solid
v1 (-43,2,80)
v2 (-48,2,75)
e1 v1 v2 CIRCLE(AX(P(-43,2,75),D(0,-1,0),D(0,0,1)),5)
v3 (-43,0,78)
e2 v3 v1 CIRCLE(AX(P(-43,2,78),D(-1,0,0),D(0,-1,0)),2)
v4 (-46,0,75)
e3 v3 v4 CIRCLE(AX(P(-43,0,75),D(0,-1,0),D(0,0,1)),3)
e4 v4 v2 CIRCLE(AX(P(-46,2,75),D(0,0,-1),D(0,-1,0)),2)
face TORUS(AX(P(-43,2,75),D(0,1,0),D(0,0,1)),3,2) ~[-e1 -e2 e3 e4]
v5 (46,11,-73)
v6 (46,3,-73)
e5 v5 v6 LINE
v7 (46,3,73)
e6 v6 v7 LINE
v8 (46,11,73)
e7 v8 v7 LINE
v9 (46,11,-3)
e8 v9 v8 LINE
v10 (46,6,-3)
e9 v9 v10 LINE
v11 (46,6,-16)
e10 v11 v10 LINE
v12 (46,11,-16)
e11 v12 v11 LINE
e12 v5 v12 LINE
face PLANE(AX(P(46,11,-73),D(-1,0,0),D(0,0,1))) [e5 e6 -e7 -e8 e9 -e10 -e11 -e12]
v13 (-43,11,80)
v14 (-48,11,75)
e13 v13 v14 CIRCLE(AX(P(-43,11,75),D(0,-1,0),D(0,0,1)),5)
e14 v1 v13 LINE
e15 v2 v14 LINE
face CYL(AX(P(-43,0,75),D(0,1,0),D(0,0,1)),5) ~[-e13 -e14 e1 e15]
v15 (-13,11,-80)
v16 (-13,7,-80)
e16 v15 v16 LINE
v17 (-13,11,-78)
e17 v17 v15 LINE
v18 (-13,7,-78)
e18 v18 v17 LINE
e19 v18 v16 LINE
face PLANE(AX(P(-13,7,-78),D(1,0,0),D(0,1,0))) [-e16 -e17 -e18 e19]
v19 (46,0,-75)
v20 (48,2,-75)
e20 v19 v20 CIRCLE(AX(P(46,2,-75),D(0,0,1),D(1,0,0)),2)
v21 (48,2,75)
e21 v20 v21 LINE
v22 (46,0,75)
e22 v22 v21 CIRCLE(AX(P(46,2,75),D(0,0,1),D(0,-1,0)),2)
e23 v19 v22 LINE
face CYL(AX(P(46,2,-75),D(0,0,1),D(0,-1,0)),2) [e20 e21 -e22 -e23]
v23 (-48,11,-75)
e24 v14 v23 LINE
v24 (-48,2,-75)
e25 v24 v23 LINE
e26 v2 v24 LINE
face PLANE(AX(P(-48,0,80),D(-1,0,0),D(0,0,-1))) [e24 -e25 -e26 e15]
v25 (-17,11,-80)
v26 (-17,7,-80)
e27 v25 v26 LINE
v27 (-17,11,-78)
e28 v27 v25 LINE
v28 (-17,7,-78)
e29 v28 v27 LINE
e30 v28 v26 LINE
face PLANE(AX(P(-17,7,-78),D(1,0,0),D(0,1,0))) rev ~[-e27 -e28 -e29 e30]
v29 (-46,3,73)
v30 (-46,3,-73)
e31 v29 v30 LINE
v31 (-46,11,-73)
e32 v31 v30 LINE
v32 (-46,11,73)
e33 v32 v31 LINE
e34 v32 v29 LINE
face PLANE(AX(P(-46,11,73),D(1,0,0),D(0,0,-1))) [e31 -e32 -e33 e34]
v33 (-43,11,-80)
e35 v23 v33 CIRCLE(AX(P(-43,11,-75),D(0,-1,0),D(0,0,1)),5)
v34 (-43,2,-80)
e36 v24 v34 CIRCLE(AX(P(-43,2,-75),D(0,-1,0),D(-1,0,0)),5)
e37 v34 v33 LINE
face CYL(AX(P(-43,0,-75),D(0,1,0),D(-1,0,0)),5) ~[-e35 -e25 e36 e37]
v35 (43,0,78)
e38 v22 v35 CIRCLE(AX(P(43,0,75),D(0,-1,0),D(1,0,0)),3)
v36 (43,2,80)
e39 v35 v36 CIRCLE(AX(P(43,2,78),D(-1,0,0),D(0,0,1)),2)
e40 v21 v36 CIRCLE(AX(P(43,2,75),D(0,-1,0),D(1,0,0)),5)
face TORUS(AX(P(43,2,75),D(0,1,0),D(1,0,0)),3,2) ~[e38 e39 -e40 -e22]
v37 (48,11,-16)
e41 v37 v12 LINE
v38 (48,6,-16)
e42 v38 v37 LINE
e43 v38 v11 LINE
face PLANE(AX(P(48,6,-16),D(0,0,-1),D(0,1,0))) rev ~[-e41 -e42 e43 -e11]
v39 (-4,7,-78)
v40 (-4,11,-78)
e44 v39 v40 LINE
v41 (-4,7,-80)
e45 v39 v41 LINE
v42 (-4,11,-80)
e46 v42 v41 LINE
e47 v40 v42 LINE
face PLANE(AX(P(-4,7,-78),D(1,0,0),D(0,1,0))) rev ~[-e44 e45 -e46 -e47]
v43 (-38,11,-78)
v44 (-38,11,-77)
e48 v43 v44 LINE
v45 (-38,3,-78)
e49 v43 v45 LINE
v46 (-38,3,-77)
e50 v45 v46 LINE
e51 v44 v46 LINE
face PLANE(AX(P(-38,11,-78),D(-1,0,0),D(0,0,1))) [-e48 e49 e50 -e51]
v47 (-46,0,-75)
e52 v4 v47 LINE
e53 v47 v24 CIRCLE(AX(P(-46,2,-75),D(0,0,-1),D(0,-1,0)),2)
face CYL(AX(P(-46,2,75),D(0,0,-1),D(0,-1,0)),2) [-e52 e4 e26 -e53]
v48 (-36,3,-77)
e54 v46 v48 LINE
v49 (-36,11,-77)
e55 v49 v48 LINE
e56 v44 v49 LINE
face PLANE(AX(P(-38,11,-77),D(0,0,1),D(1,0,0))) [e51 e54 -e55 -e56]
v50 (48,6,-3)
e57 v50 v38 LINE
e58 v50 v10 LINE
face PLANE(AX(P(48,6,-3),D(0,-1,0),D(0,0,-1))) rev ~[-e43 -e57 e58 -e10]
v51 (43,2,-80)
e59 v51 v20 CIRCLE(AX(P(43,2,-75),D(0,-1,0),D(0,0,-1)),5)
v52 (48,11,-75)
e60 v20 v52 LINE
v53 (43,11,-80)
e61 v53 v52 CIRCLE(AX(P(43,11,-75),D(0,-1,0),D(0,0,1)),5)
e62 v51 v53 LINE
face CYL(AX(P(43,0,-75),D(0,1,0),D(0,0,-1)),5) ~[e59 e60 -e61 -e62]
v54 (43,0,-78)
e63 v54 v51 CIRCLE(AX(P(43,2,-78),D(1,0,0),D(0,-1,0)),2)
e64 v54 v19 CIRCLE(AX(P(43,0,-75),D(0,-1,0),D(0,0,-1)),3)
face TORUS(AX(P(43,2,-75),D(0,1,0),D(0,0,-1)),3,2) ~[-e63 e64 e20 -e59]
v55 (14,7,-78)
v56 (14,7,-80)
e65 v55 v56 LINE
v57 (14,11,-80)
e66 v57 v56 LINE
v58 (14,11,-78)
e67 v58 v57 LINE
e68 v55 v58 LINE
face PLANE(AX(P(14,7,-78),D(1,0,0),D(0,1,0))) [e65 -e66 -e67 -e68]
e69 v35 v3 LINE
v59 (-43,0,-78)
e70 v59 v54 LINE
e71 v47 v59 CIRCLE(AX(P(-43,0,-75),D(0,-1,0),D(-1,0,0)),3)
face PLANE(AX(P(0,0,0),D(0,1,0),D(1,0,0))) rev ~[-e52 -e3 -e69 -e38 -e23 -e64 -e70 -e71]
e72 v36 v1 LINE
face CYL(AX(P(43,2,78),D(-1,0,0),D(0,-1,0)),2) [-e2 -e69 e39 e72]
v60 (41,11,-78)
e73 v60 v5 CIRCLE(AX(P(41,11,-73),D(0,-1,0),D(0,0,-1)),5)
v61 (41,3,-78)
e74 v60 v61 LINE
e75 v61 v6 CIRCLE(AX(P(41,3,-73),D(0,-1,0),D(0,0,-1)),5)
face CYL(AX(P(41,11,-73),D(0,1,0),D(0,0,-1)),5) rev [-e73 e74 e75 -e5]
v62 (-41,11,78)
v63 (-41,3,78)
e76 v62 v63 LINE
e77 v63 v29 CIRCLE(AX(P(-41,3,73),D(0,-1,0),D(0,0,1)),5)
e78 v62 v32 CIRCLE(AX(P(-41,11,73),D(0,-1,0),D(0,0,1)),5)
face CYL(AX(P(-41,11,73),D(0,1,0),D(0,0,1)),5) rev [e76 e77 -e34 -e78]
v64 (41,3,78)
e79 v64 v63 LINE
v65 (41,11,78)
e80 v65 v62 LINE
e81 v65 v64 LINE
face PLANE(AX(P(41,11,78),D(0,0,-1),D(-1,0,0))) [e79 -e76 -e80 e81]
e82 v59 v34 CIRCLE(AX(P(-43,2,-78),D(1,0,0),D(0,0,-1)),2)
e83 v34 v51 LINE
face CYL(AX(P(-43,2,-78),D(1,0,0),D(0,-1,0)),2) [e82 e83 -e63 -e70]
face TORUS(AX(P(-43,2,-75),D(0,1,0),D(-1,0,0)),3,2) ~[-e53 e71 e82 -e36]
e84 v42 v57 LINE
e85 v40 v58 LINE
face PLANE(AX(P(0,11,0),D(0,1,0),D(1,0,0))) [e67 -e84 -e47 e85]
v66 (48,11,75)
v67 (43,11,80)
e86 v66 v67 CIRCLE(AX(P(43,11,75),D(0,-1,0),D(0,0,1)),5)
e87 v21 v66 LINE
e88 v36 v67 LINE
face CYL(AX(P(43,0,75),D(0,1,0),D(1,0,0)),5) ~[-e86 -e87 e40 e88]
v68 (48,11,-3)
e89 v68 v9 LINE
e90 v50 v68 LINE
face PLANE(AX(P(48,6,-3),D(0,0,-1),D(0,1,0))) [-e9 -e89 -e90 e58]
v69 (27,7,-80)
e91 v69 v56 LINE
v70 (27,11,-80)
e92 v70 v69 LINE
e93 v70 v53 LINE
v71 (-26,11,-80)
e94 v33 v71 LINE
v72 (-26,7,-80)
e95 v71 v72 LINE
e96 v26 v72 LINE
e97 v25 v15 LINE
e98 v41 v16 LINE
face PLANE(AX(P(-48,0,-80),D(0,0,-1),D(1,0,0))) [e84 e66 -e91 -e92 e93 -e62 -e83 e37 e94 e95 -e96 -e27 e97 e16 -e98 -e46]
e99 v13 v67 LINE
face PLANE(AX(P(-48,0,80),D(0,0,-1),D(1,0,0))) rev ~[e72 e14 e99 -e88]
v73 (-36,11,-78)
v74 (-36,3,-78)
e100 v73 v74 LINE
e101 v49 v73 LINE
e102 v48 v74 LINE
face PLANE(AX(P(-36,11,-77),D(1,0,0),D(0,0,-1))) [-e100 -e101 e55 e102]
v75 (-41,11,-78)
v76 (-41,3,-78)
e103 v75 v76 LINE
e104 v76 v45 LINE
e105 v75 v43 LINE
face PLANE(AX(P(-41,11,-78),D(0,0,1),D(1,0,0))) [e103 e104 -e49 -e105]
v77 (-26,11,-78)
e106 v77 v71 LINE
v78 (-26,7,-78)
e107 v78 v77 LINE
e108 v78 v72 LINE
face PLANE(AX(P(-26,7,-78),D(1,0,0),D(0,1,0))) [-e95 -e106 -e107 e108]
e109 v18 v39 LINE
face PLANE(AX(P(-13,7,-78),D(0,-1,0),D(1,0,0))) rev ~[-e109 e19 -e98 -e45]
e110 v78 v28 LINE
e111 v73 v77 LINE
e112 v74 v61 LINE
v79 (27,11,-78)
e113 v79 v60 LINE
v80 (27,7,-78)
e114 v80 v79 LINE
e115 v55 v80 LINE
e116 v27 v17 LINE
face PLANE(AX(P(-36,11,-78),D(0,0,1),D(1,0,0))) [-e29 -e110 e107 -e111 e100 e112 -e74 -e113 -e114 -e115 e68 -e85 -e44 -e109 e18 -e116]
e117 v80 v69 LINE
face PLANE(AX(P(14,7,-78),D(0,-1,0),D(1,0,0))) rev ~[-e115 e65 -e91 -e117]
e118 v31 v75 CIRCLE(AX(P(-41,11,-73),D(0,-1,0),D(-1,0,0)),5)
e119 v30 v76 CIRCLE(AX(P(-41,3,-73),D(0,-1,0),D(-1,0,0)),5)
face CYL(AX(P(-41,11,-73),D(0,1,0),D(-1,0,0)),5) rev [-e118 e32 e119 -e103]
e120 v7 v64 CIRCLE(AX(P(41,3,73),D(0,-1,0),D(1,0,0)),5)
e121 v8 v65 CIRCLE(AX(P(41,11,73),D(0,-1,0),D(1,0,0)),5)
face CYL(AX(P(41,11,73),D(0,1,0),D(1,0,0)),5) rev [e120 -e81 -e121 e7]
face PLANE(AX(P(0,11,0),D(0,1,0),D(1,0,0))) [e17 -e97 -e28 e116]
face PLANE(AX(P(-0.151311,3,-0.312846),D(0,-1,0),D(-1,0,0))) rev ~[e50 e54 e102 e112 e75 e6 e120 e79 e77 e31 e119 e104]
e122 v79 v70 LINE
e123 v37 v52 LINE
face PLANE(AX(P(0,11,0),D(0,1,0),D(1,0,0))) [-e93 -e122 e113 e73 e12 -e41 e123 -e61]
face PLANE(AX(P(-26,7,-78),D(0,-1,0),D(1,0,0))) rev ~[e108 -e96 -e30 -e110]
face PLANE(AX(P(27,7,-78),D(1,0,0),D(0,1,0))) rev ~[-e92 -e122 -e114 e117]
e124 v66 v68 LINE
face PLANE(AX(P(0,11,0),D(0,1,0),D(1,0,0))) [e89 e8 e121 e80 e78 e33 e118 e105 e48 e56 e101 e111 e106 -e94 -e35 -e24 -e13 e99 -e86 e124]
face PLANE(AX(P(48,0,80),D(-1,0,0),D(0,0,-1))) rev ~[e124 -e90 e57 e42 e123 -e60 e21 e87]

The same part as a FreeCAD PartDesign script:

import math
import FreeCAD as App
import Part
import Sketcher
from FreeCAD import Vector


def edges_at(feature, points):
    """Names of the edges that pass closest to the given points."""
    edges = feature.Shape.Edges
    near = lambda p: min(range(len(edges)), key=lambda i: edges[i].distToShape(Part.Vertex(*p))[0])
    return sorted({f"Edge{near(p) + 1}" for p in points})

doc = App.newDocument("Part")
body = doc.addObject("PartDesign::Body", "Body")

sketch1 = doc.addObject("Sketcher::SketchObject", "Sketch")
body.addObject(sketch1)
sketch1.AttachmentSupport = (doc.XZ_Plane, [""])
sketch1.MapMode = "FlatFace"
sketch1.addGeometry(Part.LineSegment(Vector(-48, -80, 0), Vector(-48, 80, 0)), False)
sketch1.addGeometry(Part.LineSegment(Vector(-48, 80, 0), Vector(48, 80, 0)), False)
sketch1.addGeometry(Part.LineSegment(Vector(48, 80, 0), Vector(48, -80, 0)), False)
sketch1.addGeometry(Part.LineSegment(Vector(48, -80, 0), Vector(-48, -80, 0)), False)
sketch1.addConstraint(Sketcher.Constraint("Coincident", 0, 2, 1, 1))
sketch1.addConstraint(Sketcher.Constraint("Coincident", 1, 2, 2, 1))
sketch1.addConstraint(Sketcher.Constraint("Coincident", 2, 2, 3, 1))
sketch1.addConstraint(Sketcher.Constraint("Coincident", 3, 2, 0, 1))
sketch1.addConstraint(Sketcher.Constraint("Vertical", 0))
sketch1.addConstraint(Sketcher.Constraint("Horizontal", 1))
sketch1.addConstraint(Sketcher.Constraint("Vertical", 2))
sketch1.addConstraint(Sketcher.Constraint("Horizontal", 3))
sketch1.addConstraint(Sketcher.Constraint("Symmetric", 0, 2, 2, 2, -1, 1))
sketch1.addConstraint(Sketcher.Constraint("DistanceX", 1, 1, 1, 2, 96.0))
sketch1.addConstraint(Sketcher.Constraint("DistanceY", 0, 1, 0, 2, 160.0))
pad1 = doc.addObject("PartDesign::Pad", "Pad")
body.addObject(pad1)
pad1.Profile = sketch1
pad1.Length = 11
pad1.Reversed = True
doc.recompute()

fillet = doc.addObject("PartDesign::Fillet", "Fillet")
body.addObject(fillet)
fillet.Base = (pad1, edges_at(pad1, [(-48, 5.5, -80)]))
fillet.Radius = 5
doc.recompute()

fillet2 = doc.addObject("PartDesign::Fillet", "Fillet001")
body.addObject(fillet2)
fillet2.Base = (fillet, edges_at(fillet, [(48, 5.5, -80)]))
fillet2.Radius = 5
doc.recompute()

fillet3 = doc.addObject("PartDesign::Fillet", "Fillet002")
body.addObject(fillet3)
fillet3.Base = (fillet2, edges_at(fillet2, [(48, 5.5, 80)]))
fillet3.Radius = 5
doc.recompute()

fillet4 = doc.addObject("PartDesign::Fillet", "Fillet003")
body.addObject(fillet4)
fillet4.Base = (fillet3, edges_at(fillet3, [(-48, 5.5, 80)]))
fillet4.Radius = 5
doc.recompute()

fillet5 = doc.addObject("PartDesign::Fillet", "Fillet004")
body.addObject(fillet5)
fillet5.Base = (fillet4, edges_at(fillet4, [
    (-48, 0, 0),
    (-46.536, 0, -78.536),
    (0, 0, -80),
    (46.536, 0, -78.536),
    (48, 0, 0),
    (46.536, 0, 78.536),
    (0, 0, 80),
    (-46.536, 0, 78.536),
]))
fillet5.Radius = 2

sketch2 = doc.addObject("Sketcher::SketchObject", "Sketch001")
body.addObject(sketch2)
sketch2.AttachmentSupport = (doc.XZ_Plane, [""])
sketch2.MapMode = "FlatFace"
sketch2.AttachmentOffset = App.Placement(Vector(0, 0, -11), App.Rotation())
sketch2.addGeometry(Part.LineSegment(Vector(41, -78, 0), Vector(-36, -78, 0)), False)
sketch2.addGeometry(Part.LineSegment(Vector(-36, -78, 0), Vector(-36, -77, 0)), False)
sketch2.addGeometry(Part.LineSegment(Vector(-36, -77, 0), Vector(-38, -77, 0)), False)
sketch2.addGeometry(Part.LineSegment(Vector(-38, -77, 0), Vector(-38, -78, 0)), False)
sketch2.addGeometry(Part.LineSegment(Vector(-38, -78, 0), Vector(-41, -78, 0)), False)
sketch2.addGeometry(Part.ArcOfCircle(Part.Circle(Vector(-41, -73, 0), Vector(0, 0, 1), 5), math.radians(180), math.radians(270)), False)
sketch2.addGeometry(Part.LineSegment(Vector(-46, -73, 0), Vector(-46, 73, 0)), False)
sketch2.addGeometry(Part.ArcOfCircle(Part.Circle(Vector(-41, 73, 0), Vector(0, 0, 1), 5), math.radians(90), math.radians(180)), False)
sketch2.addGeometry(Part.LineSegment(Vector(-41, 78, 0), Vector(41, 78, 0)), False)
sketch2.addGeometry(Part.ArcOfCircle(Part.Circle(Vector(41, 73, 0), Vector(0, 0, 1), 5), math.radians(0), math.radians(90)), False)
sketch2.addGeometry(Part.LineSegment(Vector(46, 73, 0), Vector(46, -73, 0)), False)
sketch2.addGeometry(Part.ArcOfCircle(Part.Circle(Vector(41, -73, 0), Vector(0, 0, 1), 5), math.radians(-90), math.radians(0)), False)
sketch2.addConstraint(Sketcher.Constraint("Coincident", 0, 2, 1, 1))
sketch2.addConstraint(Sketcher.Constraint("Coincident", 1, 2, 2, 1))
sketch2.addConstraint(Sketcher.Constraint("Coincident", 2, 2, 3, 1))
sketch2.addConstraint(Sketcher.Constraint("Coincident", 3, 2, 4, 1))
sketch2.addConstraint(Sketcher.Constraint("Tangent", 4, 2, 5, 2))
sketch2.addConstraint(Sketcher.Constraint("Tangent", 5, 1, 6, 1))
sketch2.addConstraint(Sketcher.Constraint("Tangent", 6, 2, 7, 2))
sketch2.addConstraint(Sketcher.Constraint("Tangent", 7, 1, 8, 1))
sketch2.addConstraint(Sketcher.Constraint("Tangent", 8, 2, 9, 2))
sketch2.addConstraint(Sketcher.Constraint("Tangent", 9, 1, 10, 1))
sketch2.addConstraint(Sketcher.Constraint("Tangent", 10, 2, 11, 2))
sketch2.addConstraint(Sketcher.Constraint("Tangent", 11, 1, 0, 1))
sketch2.addConstraint(Sketcher.Constraint("Horizontal", 0))
sketch2.addConstraint(Sketcher.Constraint("Vertical", 1))
sketch2.addConstraint(Sketcher.Constraint("Horizontal", 2))
sketch2.addConstraint(Sketcher.Constraint("Vertical", 3))
sketch2.addConstraint(Sketcher.Constraint("Horizontal", 4))
sketch2.addConstraint(Sketcher.Constraint("Vertical", 6))
sketch2.addConstraint(Sketcher.Constraint("Horizontal", 8))
sketch2.addConstraint(Sketcher.Constraint("Vertical", 10))
sketch2.addConstraint(Sketcher.Constraint("Equal", 5, 7))
sketch2.addConstraint(Sketcher.Constraint("Equal", 7, 9))
sketch2.addConstraint(Sketcher.Constraint("Equal", 9, 11))
sketch2.addConstraint(Sketcher.Constraint("Symmetric", 5, 3, 9, 3, -1, 1))
sketch2.addConstraint(Sketcher.Constraint("Horizontal", 5, 3, 11, 3))
sketch2.addConstraint(Sketcher.Constraint("Radius", 5, 5.0))
sketch2.addConstraint(Sketcher.Constraint("DistanceX", 0, 2, 0, 1, 77.0))
sketch2.addConstraint(Sketcher.Constraint("DistanceX", 2, 2, 2, 1, 2.0))
sketch2.addConstraint(Sketcher.Constraint("DistanceX", 4, 2, 4, 1, 3.0))
sketch2.addConstraint(Sketcher.Constraint("DistanceY", 1, 1, 1, 2, 1.0))
sketch2.addConstraint(Sketcher.Constraint("DistanceY", 6, 1, 6, 2, 146.0))
pocket1 = doc.addObject("PartDesign::Pocket", "Pocket")
body.addObject(pocket1)
pocket1.Profile = sketch2
pocket1.Length = 8
pocket1.Reversed = True

sketch3 = doc.addObject("Sketcher::SketchObject", "Sketch002")
body.addObject(sketch3)
sketch3.AttachmentSupport = (doc.XY_Plane, [""])
sketch3.MapMode = "FlatFace"
sketch3.AttachmentOffset = App.Placement(Vector(0, 0, -78), App.Rotation())
sketch3.addGeometry(Part.LineSegment(Vector(-26, 11, 0), Vector(-26, 7, 0)), False)
sketch3.addGeometry(Part.LineSegment(Vector(-26, 7, 0), Vector(-17, 7, 0)), False)
sketch3.addGeometry(Part.LineSegment(Vector(-17, 7, 0), Vector(-17, 11, 0)), False)
sketch3.addGeometry(Part.LineSegment(Vector(-17, 11, 0), Vector(-26, 11, 0)), False)
sketch3.addGeometry(Part.LineSegment(Vector(-13, 11, 0), Vector(-13, 7, 0)), False)
sketch3.addGeometry(Part.LineSegment(Vector(-13, 7, 0), Vector(-4, 7, 0)), False)
sketch3.addGeometry(Part.LineSegment(Vector(-4, 7, 0), Vector(-4, 11, 0)), False)
sketch3.addGeometry(Part.LineSegment(Vector(-4, 11, 0), Vector(-13, 11, 0)), False)
sketch3.addGeometry(Part.LineSegment(Vector(11.777913, 58.653499, 0), Vector(11.777913, 54.653499, 0)), False)
sketch3.addGeometry(Part.LineSegment(Vector(11.777913, 54.653499, 0), Vector(20.777913, 54.653499, 0)), False)
sketch3.addGeometry(Part.LineSegment(Vector(20.777913, 54.653499, 0), Vector(20.777913, 58.653499, 0)), False)
sketch3.addGeometry(Part.LineSegment(Vector(20.777913, 58.653499, 0), Vector(11.777913, 58.653499, 0)), False)
sketch3.addGeometry(Part.LineSegment(Vector(14, 11, 0), Vector(14, 7, 0)), False)
sketch3.addGeometry(Part.LineSegment(Vector(14, 7, 0), Vector(27, 7, 0)), False)
sketch3.addGeometry(Part.LineSegment(Vector(27, 7, 0), Vector(27, 11, 0)), False)
sketch3.addGeometry(Part.LineSegment(Vector(27, 11, 0), Vector(14, 11, 0)), False)
sketch3.addConstraint(Sketcher.Constraint("Coincident", 0, 2, 1, 1))
sketch3.addConstraint(Sketcher.Constraint("Coincident", 1, 2, 2, 1))
sketch3.addConstraint(Sketcher.Constraint("Coincident", 2, 2, 3, 1))
sketch3.addConstraint(Sketcher.Constraint("Coincident", 3, 2, 0, 1))
sketch3.addConstraint(Sketcher.Constraint("Coincident", 4, 2, 5, 1))
sketch3.addConstraint(Sketcher.Constraint("Coincident", 5, 2, 6, 1))
sketch3.addConstraint(Sketcher.Constraint("Coincident", 6, 2, 7, 1))
sketch3.addConstraint(Sketcher.Constraint("Coincident", 7, 2, 4, 1))
sketch3.addConstraint(Sketcher.Constraint("Coincident", 8, 2, 9, 1))
sketch3.addConstraint(Sketcher.Constraint("Coincident", 9, 2, 10, 1))
sketch3.addConstraint(Sketcher.Constraint("Coincident", 10, 2, 11, 1))
sketch3.addConstraint(Sketcher.Constraint("Coincident", 11, 2, 8, 1))
sketch3.addConstraint(Sketcher.Constraint("Coincident", 12, 2, 13, 1))
sketch3.addConstraint(Sketcher.Constraint("Coincident", 13, 2, 14, 1))
sketch3.addConstraint(Sketcher.Constraint("Coincident", 14, 2, 15, 1))
sketch3.addConstraint(Sketcher.Constraint("Coincident", 15, 2, 12, 1))
sketch3.addConstraint(Sketcher.Constraint("Vertical", 0))
sketch3.addConstraint(Sketcher.Constraint("Horizontal", 1))
sketch3.addConstraint(Sketcher.Constraint("Vertical", 2))
sketch3.addConstraint(Sketcher.Constraint("Horizontal", 3))
sketch3.addConstraint(Sketcher.Constraint("Vertical", 4))
sketch3.addConstraint(Sketcher.Constraint("Horizontal", 5))
sketch3.addConstraint(Sketcher.Constraint("Vertical", 6))
sketch3.addConstraint(Sketcher.Constraint("Horizontal", 7))
sketch3.addConstraint(Sketcher.Constraint("Vertical", 8))
sketch3.addConstraint(Sketcher.Constraint("Horizontal", 9))
sketch3.addConstraint(Sketcher.Constraint("Vertical", 10))
sketch3.addConstraint(Sketcher.Constraint("Horizontal", 11))
sketch3.addConstraint(Sketcher.Constraint("Vertical", 12))
sketch3.addConstraint(Sketcher.Constraint("Horizontal", 13))
sketch3.addConstraint(Sketcher.Constraint("Vertical", 14))
sketch3.addConstraint(Sketcher.Constraint("Horizontal", 15))
sketch3.addConstraint(Sketcher.Constraint("Horizontal", 1, 2, 4, 2))
sketch3.addConstraint(Sketcher.Constraint("Horizontal", 3, 2, 6, 2))
sketch3.addConstraint(Sketcher.Constraint("Horizontal", 5, 2, 12, 2))
sketch3.addConstraint(Sketcher.Constraint("Horizontal", 7, 2, 14, 2))
sketch3.addConstraint(Sketcher.Constraint("Equal", 3, 5))
sketch3.addConstraint(Sketcher.Constraint("Equal", 7, 9))
sketch3.addConstraint(Sketcher.Constraint("Equal", 6, 8))
sketch3.addConstraint(Sketcher.Constraint("DistanceX", 1, 1, 1, 2, 9.0))
sketch3.addConstraint(Sketcher.Constraint("DistanceX", 13, 1, 13, 2, 13.0))
sketch3.addConstraint(Sketcher.Constraint("DistanceY", 0, 2, 0, 1, 4.0))
sketch3.addConstraint(Sketcher.Constraint("DistanceX", 0, 2, -1, 1, 26.0))
sketch3.addConstraint(Sketcher.Constraint("DistanceY", -1, 1, 0, 2, 7.0))
sketch3.addConstraint(Sketcher.Constraint("DistanceX", 4, 2, -1, 1, 13.0))
sketch3.addConstraint(Sketcher.Constraint("DistanceX", -1, 1, 12, 2, 14.0))
sketch3.addConstraint(Sketcher.Constraint("DistanceY", -1, 1, 8, 2, 54.653499))
sketch3.addConstraint(Sketcher.Constraint("DistanceX", -1, 1, 8, 2, 11.777913))
pocket2 = doc.addObject("PartDesign::Pocket", "Pocket001")
body.addObject(pocket2)
pocket2.Profile = sketch3
pocket2.Length = 4

sketch4 = doc.addObject("Sketcher::SketchObject", "Sketch003")
body.addObject(sketch4)
sketch4.AttachmentSupport = (doc.YZ_Plane, [""])
sketch4.MapMode = "FlatFace"
sketch4.AttachmentOffset = App.Placement(Vector(0, 0, 48), App.Rotation())
sketch4.addGeometry(Part.LineSegment(Vector(11, -3, 0), Vector(6, -3, 0)), False)
sketch4.addGeometry(Part.LineSegment(Vector(6, -3, 0), Vector(6, -16, 0)), False)
sketch4.addGeometry(Part.LineSegment(Vector(6, -16, 0), Vector(11, -16, 0)), False)
sketch4.addGeometry(Part.LineSegment(Vector(11, -16, 0), Vector(11, -3, 0)), False)
sketch4.addConstraint(Sketcher.Constraint("Coincident", 0, 2, 1, 1))
sketch4.addConstraint(Sketcher.Constraint("Coincident", 1, 2, 2, 1))
sketch4.addConstraint(Sketcher.Constraint("Coincident", 2, 2, 3, 1))
sketch4.addConstraint(Sketcher.Constraint("Coincident", 3, 2, 0, 1))
sketch4.addConstraint(Sketcher.Constraint("Horizontal", 0))
sketch4.addConstraint(Sketcher.Constraint("Vertical", 1))
sketch4.addConstraint(Sketcher.Constraint("Horizontal", 2))
sketch4.addConstraint(Sketcher.Constraint("Vertical", 3))
sketch4.addConstraint(Sketcher.Constraint("DistanceX", 0, 2, 0, 1, 5.0))
sketch4.addConstraint(Sketcher.Constraint("DistanceY", 1, 2, 1, 1, 13.0))
sketch4.addConstraint(Sketcher.Constraint("DistanceX", -1, 1, 0, 2, 6.0))
sketch4.addConstraint(Sketcher.Constraint("DistanceY", 0, 2, -1, 1, 3.0))
pocket3 = doc.addObject("PartDesign::Pocket", "Pocket002")
body.addObject(pocket3)
pocket3.Profile = sketch4
pocket3.Length = 5

doc.recompute()
